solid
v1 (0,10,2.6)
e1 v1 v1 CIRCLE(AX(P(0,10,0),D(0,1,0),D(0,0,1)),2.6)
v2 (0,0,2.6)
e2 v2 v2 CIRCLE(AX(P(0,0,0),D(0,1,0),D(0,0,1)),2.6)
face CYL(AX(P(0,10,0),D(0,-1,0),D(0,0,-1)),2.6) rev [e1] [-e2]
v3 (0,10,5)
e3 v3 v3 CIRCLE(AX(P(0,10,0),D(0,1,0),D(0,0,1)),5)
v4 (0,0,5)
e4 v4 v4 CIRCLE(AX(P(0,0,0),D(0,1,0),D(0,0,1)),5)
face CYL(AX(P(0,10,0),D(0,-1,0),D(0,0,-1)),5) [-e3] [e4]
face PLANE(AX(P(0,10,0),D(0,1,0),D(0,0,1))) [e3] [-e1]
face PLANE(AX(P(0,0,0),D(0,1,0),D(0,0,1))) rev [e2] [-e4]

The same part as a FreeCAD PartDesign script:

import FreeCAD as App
import Part
import Sketcher

V = App.Vector

doc = App.newDocument("Part")
body = doc.addObject("PartDesign::Body", "Body")

sketch1 = body.newObject("Sketcher::SketchObject", "Sketch")
sketch1.AttachmentSupport = (doc.getObject("XZ_Plane"), [""])
sketch1.MapMode = "FlatFace"
sketch1.addGeometry([
    Part.Circle(V(0, 0, 0), V(0, 0, 1), 5),
    Part.Circle(V(0, 0, 0), V(0, 0, 1), 2.6),
], False)
sketch1.addConstraint([
    Sketcher.Constraint("Coincident", 0, 3, -1, 1),
    Sketcher.Constraint("Coincident", 1, 3, -1, 1),
    Sketcher.Constraint("Diameter", 0, 10.0),
    Sketcher.Constraint("Diameter", 1, 5.2),
])
pad1 = body.newObject("PartDesign::Pad", "Pad")
pad1.Profile = sketch1
pad1.Length = 10
pad1.Reversed = True

doc.recompute()
